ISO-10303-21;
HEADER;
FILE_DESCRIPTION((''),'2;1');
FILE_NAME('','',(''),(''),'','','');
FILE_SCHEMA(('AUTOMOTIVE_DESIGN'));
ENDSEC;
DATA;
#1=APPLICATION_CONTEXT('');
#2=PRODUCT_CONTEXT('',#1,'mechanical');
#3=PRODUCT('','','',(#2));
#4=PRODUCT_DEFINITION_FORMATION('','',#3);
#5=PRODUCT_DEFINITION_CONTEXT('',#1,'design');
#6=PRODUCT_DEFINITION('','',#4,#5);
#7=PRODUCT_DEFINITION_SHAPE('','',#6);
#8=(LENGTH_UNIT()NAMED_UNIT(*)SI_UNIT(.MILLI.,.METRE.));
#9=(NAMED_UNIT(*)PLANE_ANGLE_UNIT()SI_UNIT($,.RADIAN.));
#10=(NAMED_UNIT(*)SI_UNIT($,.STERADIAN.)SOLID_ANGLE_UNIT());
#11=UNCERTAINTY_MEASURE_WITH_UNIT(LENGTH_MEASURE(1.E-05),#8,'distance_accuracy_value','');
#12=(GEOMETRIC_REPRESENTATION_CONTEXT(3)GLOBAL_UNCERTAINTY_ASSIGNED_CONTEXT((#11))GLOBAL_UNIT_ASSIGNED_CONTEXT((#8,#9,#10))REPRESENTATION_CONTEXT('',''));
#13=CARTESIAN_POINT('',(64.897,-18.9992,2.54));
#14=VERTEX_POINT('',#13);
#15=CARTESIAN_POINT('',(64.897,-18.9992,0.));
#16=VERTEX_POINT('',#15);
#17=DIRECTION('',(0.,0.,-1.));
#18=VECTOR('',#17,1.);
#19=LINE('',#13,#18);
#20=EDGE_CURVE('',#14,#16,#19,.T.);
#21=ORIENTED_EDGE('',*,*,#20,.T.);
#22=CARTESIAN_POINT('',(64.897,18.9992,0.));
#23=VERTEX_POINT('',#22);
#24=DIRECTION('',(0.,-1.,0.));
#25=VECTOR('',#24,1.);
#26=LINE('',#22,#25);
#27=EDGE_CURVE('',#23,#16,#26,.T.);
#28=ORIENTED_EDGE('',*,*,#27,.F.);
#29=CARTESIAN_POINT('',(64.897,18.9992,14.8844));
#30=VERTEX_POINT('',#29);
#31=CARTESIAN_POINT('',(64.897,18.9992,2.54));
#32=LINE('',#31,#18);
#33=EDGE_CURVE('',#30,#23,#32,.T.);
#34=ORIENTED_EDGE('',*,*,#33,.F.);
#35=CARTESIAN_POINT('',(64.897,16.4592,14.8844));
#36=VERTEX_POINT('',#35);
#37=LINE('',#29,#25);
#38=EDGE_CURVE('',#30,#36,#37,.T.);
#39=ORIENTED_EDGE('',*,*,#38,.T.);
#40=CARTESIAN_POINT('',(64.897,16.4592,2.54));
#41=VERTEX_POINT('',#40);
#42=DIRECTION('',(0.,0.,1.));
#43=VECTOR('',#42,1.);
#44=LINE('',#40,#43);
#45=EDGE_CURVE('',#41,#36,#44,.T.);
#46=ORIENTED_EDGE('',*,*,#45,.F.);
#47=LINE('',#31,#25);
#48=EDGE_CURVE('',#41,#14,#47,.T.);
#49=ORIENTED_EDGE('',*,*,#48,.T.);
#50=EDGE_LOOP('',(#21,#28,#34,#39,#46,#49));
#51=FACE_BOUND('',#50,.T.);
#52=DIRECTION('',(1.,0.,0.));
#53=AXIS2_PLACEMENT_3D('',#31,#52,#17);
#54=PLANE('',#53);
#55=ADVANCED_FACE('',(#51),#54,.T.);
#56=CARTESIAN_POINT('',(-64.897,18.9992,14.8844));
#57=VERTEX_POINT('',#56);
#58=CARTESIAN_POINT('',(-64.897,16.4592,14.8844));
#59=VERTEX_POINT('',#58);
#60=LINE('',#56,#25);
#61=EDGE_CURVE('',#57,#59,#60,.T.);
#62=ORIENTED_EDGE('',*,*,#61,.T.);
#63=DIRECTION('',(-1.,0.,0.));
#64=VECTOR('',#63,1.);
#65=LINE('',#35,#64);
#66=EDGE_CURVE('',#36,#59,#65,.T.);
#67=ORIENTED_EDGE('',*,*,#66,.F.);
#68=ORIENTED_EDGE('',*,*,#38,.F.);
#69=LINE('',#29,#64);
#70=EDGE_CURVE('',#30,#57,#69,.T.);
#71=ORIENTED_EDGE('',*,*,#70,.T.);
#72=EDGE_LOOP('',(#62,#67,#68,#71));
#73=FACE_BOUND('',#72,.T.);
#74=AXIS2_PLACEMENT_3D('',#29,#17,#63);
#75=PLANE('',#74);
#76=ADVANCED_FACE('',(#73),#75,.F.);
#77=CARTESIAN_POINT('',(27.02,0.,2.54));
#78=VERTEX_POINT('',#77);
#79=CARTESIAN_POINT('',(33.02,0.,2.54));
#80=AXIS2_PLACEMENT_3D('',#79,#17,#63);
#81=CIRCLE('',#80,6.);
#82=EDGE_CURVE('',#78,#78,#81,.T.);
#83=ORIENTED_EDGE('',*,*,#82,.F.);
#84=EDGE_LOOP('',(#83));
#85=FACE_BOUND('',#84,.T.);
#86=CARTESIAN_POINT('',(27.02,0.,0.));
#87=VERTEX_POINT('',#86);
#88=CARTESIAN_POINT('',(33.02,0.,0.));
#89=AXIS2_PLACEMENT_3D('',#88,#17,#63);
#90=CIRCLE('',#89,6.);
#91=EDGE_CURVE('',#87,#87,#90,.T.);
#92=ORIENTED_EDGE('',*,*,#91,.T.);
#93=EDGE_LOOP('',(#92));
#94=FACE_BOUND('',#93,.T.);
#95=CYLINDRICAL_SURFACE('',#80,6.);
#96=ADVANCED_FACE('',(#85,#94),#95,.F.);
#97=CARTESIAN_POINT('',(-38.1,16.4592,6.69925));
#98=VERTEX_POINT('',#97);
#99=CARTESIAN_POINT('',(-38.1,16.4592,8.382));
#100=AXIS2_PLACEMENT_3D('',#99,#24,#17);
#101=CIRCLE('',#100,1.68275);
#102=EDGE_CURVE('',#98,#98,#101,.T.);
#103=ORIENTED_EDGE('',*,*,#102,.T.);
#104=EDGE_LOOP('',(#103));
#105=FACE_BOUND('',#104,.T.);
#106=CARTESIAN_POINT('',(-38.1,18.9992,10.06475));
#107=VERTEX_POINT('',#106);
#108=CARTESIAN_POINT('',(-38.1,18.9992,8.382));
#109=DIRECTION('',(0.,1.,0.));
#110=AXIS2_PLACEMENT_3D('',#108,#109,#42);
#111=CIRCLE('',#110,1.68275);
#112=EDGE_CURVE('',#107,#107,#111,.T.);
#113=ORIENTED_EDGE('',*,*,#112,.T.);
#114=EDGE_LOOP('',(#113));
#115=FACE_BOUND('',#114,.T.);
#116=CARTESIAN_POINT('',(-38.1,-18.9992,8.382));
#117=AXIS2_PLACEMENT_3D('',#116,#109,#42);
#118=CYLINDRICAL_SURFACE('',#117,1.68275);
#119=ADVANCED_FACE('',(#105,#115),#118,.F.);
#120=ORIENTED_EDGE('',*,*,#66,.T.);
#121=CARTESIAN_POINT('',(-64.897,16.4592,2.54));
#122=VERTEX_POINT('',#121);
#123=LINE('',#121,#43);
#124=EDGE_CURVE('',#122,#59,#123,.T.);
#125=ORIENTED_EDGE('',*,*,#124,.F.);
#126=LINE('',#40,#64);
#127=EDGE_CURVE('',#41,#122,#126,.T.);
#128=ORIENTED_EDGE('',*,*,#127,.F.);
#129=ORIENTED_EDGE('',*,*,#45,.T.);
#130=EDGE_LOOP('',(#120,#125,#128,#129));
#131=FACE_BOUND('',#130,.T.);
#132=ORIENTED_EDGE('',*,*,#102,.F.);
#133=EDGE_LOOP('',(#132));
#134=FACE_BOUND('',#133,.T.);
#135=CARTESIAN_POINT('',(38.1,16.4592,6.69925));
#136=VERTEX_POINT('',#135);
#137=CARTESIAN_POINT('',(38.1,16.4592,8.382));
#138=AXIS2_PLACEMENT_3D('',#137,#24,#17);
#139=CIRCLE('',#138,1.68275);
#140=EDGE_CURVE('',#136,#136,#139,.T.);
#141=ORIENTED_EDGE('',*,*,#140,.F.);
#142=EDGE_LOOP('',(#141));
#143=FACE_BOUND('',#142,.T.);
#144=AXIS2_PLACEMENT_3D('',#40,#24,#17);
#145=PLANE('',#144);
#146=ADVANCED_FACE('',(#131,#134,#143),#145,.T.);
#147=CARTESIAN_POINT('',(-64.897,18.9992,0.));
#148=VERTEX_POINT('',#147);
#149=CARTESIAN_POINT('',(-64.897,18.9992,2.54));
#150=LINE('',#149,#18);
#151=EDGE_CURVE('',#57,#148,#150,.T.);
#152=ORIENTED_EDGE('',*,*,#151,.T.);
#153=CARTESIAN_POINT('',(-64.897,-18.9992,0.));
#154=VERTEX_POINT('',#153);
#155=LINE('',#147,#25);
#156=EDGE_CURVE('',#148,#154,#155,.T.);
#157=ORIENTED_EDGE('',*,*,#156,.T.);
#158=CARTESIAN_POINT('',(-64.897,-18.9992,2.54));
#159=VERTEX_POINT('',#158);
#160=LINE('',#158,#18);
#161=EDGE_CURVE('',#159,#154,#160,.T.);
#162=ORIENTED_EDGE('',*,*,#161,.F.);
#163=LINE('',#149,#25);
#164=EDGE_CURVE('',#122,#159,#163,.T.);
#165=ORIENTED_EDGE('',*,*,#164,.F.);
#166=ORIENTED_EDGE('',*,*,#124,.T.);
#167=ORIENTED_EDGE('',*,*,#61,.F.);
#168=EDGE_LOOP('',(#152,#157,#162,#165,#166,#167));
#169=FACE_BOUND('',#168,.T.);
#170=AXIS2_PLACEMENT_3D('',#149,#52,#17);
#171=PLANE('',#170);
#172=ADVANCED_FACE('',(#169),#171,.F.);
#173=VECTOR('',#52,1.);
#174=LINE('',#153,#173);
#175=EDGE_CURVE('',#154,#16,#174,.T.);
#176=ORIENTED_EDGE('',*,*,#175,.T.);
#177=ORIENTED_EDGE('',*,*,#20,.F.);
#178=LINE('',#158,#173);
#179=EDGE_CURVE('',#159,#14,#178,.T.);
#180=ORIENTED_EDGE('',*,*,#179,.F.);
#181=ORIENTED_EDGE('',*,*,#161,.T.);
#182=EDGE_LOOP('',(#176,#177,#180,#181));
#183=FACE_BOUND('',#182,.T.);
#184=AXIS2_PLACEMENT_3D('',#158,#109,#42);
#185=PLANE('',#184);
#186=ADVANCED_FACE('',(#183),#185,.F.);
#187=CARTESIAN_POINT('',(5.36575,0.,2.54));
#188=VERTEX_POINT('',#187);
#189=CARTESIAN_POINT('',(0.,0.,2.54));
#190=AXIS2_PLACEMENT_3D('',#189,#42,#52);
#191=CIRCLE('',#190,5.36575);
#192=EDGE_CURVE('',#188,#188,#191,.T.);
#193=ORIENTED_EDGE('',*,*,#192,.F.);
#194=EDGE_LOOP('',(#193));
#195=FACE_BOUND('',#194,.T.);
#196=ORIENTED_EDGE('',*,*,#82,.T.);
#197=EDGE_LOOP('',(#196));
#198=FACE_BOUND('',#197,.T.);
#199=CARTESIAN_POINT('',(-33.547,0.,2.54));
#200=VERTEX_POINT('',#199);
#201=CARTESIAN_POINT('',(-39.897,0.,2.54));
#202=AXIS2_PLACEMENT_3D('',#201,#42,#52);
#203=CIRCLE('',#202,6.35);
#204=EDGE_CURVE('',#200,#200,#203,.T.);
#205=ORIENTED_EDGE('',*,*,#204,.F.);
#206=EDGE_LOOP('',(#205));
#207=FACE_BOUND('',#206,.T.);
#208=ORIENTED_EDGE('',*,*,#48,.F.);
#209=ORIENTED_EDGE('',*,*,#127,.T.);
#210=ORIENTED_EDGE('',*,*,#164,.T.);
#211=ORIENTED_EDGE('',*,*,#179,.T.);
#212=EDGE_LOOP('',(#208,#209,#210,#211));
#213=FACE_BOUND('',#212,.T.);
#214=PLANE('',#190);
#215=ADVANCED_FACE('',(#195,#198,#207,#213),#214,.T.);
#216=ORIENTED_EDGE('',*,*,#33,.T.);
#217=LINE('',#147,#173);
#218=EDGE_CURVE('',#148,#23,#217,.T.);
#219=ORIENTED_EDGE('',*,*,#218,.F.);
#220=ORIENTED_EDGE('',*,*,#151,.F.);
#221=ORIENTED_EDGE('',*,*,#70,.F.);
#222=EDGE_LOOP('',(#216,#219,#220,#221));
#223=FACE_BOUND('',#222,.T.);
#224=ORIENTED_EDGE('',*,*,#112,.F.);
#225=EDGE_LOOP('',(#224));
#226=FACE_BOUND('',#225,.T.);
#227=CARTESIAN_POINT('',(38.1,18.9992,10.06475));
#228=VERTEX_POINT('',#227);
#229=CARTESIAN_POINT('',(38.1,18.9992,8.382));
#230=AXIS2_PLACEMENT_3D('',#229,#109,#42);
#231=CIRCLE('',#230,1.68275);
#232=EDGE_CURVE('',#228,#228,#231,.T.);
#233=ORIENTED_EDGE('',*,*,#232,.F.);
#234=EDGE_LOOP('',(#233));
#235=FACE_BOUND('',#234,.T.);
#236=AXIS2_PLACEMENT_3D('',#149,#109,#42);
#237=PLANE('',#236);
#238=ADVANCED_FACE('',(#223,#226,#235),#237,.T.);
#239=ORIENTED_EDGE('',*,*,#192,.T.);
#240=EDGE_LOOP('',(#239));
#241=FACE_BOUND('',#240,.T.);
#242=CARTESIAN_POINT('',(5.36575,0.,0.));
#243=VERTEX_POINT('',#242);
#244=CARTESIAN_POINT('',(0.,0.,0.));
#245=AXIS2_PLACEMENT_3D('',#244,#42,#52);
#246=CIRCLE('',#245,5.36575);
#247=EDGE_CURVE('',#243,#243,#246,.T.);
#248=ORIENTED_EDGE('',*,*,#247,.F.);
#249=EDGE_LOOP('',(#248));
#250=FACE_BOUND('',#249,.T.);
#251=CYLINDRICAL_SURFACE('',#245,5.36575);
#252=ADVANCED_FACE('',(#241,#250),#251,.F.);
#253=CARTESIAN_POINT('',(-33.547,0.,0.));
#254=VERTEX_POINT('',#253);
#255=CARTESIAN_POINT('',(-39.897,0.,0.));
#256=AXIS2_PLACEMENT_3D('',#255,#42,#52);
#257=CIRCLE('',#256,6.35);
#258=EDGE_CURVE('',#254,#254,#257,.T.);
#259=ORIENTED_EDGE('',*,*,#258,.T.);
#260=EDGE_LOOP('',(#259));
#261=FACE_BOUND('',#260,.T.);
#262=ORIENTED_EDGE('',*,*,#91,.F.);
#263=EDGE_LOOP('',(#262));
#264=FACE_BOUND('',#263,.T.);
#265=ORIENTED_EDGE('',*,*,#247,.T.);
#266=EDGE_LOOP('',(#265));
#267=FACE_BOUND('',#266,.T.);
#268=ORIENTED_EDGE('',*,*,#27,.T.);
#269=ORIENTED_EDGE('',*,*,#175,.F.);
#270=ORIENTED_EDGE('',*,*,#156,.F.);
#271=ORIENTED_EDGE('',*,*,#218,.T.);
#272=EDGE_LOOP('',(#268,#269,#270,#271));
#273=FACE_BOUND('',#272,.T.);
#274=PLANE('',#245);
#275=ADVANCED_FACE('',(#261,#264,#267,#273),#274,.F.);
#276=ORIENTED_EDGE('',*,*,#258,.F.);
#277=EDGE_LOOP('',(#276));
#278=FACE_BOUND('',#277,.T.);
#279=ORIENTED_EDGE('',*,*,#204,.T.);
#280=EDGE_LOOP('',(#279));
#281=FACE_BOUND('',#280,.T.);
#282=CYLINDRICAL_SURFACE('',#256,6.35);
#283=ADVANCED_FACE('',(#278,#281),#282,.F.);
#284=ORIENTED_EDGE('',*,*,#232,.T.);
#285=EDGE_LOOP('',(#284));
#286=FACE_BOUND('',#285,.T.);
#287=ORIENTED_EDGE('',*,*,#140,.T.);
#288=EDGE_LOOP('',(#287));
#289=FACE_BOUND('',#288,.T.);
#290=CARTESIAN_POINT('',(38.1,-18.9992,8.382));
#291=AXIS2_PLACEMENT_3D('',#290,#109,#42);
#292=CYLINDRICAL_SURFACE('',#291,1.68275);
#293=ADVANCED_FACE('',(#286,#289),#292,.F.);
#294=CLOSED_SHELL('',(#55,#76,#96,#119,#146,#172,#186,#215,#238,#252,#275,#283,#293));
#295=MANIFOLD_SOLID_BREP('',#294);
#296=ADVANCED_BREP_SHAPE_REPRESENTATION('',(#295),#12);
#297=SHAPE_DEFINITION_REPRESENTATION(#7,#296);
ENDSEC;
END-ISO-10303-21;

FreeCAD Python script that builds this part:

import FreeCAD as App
import Part
import Sketcher
Q = App.Units.Quantity


def add_polygon(sketch, points):
    """Adds a closed chain of lines whose ends are joined by coincident constraints."""
    first, n = sketch.GeometryCount, len(points)
    for a, b in zip(points, points[1:] + points[:1]):
        sketch.addGeometry(Part.LineSegment(App.Vector(*a, 0), App.Vector(*b, 0)), False)
    for i in range(n):
        sketch.addConstraint(Sketcher.Constraint("Coincident", first + i, 2, first + (i + 1) % n, 1))

doc = App.newDocument("Part")
body = doc.addObject("PartDesign::Body", "Body")

# Sketch on XY plane
sketch1 = doc.addObject("Sketcher::SketchObject", "Sketch")
body.addObject(sketch1)
sketch1.AttachmentSupport = (doc.XY_Plane, [""])
sketch1.MapMode = "FlatFace"
add_polygon(sketch1, [(-65, 19), (-65, -19), (65, -19), (65, 19)])  # lines 0-3
sketch1.addConstraint(Sketcher.Constraint("Vertical", 0))
sketch1.addConstraint(Sketcher.Constraint("Horizontal", 1))
sketch1.addConstraint(Sketcher.Constraint("Vertical", 2))
sketch1.addConstraint(Sketcher.Constraint("Horizontal", 3))
sketch1.addConstraint(Sketcher.Constraint("Symmetric", 0, 2, 2, 2, -1, 1))
sketch1.addConstraint(Sketcher.Constraint("DistanceX", 1, 1, 1, 2, Q("5.11 in")))
sketch1.addConstraint(Sketcher.Constraint("DistanceY", 0, 2, 0, 1, Q("1.496 in")))
pad1 = doc.addObject("PartDesign::Pad", "Pad")
body.addObject(pad1)
pad1.Profile = sketch1
pad1.Length = Q("0.1 in")

# Sketch on YZ plane
sketch2 = doc.addObject("Sketcher::SketchObject", "Sketch001")
body.addObject(sketch2)
sketch2.AttachmentSupport = (doc.YZ_Plane, [""])
sketch2.MapMode = "FlatFace"
sketch2.AttachmentOffset = App.Placement(App.Vector(0, 0, -2.555 * 25.4), App.Rotation())
add_polygon(sketch2, [(19, 2.5), (16.5, 2.5), (16.5, 14.9), (19, 14.9)])  # lines 0-3
sketch2.addConstraint(Sketcher.Constraint("Horizontal", 0))
sketch2.addConstraint(Sketcher.Constraint("Vertical", 1))
sketch2.addConstraint(Sketcher.Constraint("Horizontal", 2))
sketch2.addConstraint(Sketcher.Constraint("Vertical", 3))
sketch2.addConstraint(Sketcher.Constraint("DistanceX", 0, 2, 0, 1, Q("0.1 in")))
sketch2.addConstraint(Sketcher.Constraint("DistanceY", -1, 1, 0, 2, Q("0.1 in")))
sketch2.addConstraint(Sketcher.Constraint("DistanceY", 1, 1, 1, 2, Q("0.486 in")))
sketch2.addConstraint(Sketcher.Constraint("DistanceX", -1, 1, 0, 2, Q("0.648 in")))
pad2 = doc.addObject("PartDesign::Pad", "Pad001")
body.addObject(pad2)
pad2.Profile = sketch2
pad2.Length = Q("5.11 in")

# Sketch on XY plane
sketch3 = doc.addObject("Sketcher::SketchObject", "Sketch002")
body.addObject(sketch3)
sketch3.AttachmentSupport = (doc.XY_Plane, [""])
sketch3.MapMode = "FlatFace"
sketch3.AttachmentOffset = App.Placement(App.Vector(0, 0, 0.1 * 25.4), App.Rotation())
sketch3.addGeometry(Part.Circle(App.Vector(0, 0, 0), App.Vector(0, 0, 1), 5), False)
sketch3.addConstraint(Sketcher.Constraint("Coincident", 0, 3, -1, 1))
sketch3.addConstraint(Sketcher.Constraint("Diameter", 0, Q("0.4225 in")))
pocket1 = doc.addObject("PartDesign::Pocket", "Pocket")
body.addObject(pocket1)
pocket1.Profile = sketch3
pocket1.Type = "ThroughAll"

# Sketch on XZ plane
sketch4 = doc.addObject("Sketcher::SketchObject", "Sketch003")
body.addObject(sketch4)
sketch4.AttachmentSupport = (doc.XZ_Plane, [""])
sketch4.MapMode = "FlatFace"
sketch4.AttachmentOffset = App.Placement(App.Vector(0, 0, -0.748 * 25.4), App.Rotation())
sketch4.addGeometry(Part.Circle(App.Vector(-38.1, 8.4, 0), App.Vector(0, 0, 1), 1.7), False)
sketch4.addGeometry(Part.Circle(App.Vector(38.1, 8.4, 0), App.Vector(0, 0, 1), 1.7), False)
sketch4.addConstraint(Sketcher.Constraint("Equal", 0, 1))
sketch4.addConstraint(Sketcher.Constraint("Symmetric", 0, 3, 1, 3, -2))
sketch4.addConstraint(Sketcher.Constraint("DistanceX", 0, 3, 1, 3, Q("3 in")))
sketch4.addConstraint(Sketcher.Constraint("Diameter", 0, Q("0.1325 in")))
sketch4.addConstraint(Sketcher.Constraint("DistanceY", -1, 1, 0, 3, Q("0.33 in")))
pocket2 = doc.addObject("PartDesign::Pocket", "Pocket001")
body.addObject(pocket2)
pocket2.Profile = sketch4
pocket2.Type = "ThroughAll"
pocket2.Reversed = True

# Sketch on XY plane
sketch5 = doc.addObject("Sketcher::SketchObject", "Sketch004")
body.addObject(sketch5)
sketch5.AttachmentSupport = (doc.XY_Plane, [""])
sketch5.MapMode = "FlatFace"
sketch5.AttachmentOffset = App.Placement(App.Vector(0, 0, 0.1 * 25.4), App.Rotation())
sketch5.addGeometry(Part.Circle(App.Vector(-40, 0, 0), App.Vector(0, 0, 1), 6), False)
sketch5.addConstraint(Sketcher.Constraint("PointOnObject", 0, 3, -1))
sketch5.addConstraint(Sketcher.Constraint("Diameter", 0, Q("0.5 in")))
sketch5.addConstraint(Sketcher.Constraint("DistanceX", 0, 3, -1, 1, Q("39.897 mm")))
pocket3 = doc.addObject("PartDesign::Pocket", "Pocket002")
body.addObject(pocket3)
pocket3.Profile = sketch5
pocket3.Length = Q("0.1 in")

# Sketch on XY plane
sketch6 = doc.addObject("Sketcher::SketchObject", "Sketch005")
body.addObject(sketch6)
sketch6.AttachmentSupport = (doc.XY_Plane, [""])
sketch6.MapMode = "FlatFace"
sketch6.addGeometry(Part.Circle(App.Vector(33, 0, 0), App.Vector(0, 0, 1), 6), False)
sketch6.addConstraint(Sketcher.Constraint("PointOnObject", 0, 3, -1))
sketch6.addConstraint(Sketcher.Constraint("DistanceX", -1, 1, 0, 3, Q("1.3 in")))
sketch6.addConstraint(Sketcher.Constraint("Diameter", 0, Q("12 mm")))
pocket4 = doc.addObject("PartDesign::Pocket", "Pocket003")
body.addObject(pocket4)
pocket4.Profile = sketch6
pocket4.Length = Q("0.1 in")
pocket4.Reversed = True

doc.recompute()
